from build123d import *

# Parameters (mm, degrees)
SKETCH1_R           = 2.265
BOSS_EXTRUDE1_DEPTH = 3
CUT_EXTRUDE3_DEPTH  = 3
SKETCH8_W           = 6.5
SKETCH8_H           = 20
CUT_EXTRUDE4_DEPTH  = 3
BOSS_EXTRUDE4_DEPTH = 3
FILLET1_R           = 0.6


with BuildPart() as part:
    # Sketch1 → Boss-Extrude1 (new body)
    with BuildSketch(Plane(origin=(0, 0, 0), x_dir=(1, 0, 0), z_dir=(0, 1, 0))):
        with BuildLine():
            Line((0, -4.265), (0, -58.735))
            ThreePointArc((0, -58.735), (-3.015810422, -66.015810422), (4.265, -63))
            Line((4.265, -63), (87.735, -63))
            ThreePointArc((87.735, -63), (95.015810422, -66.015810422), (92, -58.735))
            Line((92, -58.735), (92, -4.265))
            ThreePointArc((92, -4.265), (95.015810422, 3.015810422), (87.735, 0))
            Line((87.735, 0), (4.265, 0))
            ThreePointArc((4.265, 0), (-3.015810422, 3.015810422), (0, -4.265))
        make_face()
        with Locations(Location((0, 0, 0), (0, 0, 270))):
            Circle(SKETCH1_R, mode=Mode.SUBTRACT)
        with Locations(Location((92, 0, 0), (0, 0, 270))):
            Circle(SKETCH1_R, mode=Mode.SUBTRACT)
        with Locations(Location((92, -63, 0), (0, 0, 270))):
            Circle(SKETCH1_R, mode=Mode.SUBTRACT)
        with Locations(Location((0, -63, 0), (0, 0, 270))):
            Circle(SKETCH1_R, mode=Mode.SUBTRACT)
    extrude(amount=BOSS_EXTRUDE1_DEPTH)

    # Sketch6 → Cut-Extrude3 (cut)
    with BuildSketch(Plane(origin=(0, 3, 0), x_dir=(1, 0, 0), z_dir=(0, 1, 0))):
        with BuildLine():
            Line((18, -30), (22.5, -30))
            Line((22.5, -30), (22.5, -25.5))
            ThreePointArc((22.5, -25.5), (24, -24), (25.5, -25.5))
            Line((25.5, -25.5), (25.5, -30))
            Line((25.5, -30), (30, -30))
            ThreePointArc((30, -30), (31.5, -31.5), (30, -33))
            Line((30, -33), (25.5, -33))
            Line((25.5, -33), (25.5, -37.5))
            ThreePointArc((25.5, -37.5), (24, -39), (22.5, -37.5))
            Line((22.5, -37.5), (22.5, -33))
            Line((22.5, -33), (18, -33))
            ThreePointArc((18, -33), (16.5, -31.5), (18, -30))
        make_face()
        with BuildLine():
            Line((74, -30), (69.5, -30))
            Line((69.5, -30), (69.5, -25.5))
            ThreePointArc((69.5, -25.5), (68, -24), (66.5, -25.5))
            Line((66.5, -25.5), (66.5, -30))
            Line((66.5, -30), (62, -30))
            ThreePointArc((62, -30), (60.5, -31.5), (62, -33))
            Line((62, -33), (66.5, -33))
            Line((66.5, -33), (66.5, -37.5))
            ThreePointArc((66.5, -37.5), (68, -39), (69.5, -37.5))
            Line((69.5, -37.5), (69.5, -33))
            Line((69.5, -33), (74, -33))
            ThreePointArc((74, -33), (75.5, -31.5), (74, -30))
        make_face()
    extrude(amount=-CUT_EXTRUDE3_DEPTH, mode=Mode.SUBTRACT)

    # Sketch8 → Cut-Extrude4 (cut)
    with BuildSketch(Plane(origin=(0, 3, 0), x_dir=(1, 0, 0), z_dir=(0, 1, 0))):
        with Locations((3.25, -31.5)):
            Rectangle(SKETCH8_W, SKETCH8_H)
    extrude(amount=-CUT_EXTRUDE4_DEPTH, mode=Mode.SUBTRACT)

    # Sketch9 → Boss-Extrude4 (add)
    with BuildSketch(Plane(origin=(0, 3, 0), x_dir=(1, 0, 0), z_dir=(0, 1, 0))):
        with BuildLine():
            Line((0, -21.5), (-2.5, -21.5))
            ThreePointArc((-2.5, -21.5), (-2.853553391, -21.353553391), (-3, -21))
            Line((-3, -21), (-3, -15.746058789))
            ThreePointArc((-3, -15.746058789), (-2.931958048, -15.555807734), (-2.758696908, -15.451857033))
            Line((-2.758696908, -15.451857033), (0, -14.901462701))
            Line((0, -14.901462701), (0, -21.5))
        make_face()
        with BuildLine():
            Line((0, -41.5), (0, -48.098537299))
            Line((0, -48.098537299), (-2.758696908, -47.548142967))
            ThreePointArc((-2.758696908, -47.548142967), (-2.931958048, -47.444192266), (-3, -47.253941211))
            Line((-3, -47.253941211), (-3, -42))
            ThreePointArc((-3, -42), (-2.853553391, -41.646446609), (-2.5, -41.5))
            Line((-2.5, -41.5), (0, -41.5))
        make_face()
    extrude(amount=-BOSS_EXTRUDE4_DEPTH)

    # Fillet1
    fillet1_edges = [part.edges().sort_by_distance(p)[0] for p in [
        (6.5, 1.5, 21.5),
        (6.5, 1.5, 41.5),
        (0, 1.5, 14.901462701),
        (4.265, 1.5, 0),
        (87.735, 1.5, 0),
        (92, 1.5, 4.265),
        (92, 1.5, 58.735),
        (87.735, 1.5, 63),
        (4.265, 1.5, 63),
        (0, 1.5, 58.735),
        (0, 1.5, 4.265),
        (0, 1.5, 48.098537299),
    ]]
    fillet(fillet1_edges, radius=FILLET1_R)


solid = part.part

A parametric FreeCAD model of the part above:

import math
import FreeCAD as App
import Part
import Sketcher

V = App.Vector


def edges_at(feature, points):
    """Names of the edges that pass closest to the given points."""
    edges = feature.Shape.Edges
    near = lambda p: min(range(len(edges)), key=lambda i: edges[i].distToShape(Part.Vertex(*p))[0])
    return sorted({f"Edge{near(p) + 1}" for p in points})

doc = App.newDocument("Part")
body = doc.addObject("PartDesign::Body", "Body")

# Sketch on XZ plane
sketch1 = body.newObject("Sketcher::SketchObject", "Sketch")
sketch1.AttachmentSupport = (doc.getObject("XZ_Plane"), [""])
sketch1.MapMode = "FlatFace"
sketch1.addGeometry(Part.LineSegment(V(0, 4.265, 0), V(0, 58.735, 0)), False)
sketch1.addGeometry(Part.ArcOfCircle(Part.Circle(V(0, 63, 0), V(0, 0, 1), 4.265), math.radians(0), math.radians(270)), False)
sketch1.addGeometry(Part.LineSegment(V(4.265, 63, 0), V(87.735, 63, 0)), False)
sketch1.addGeometry(Part.ArcOfCircle(Part.Circle(V(92, 63, 0), V(0, 0, 1), 4.265), math.radians(-90), math.radians(180)), False)
sketch1.addGeometry(Part.LineSegment(V(92, 58.735, 0), V(92, 4.265, 0)), False)
sketch1.addGeometry(Part.ArcOfCircle(Part.Circle(V(92, 0, 0), V(0, 0, 1), 4.265), math.radians(180), math.radians(450)), False)
sketch1.addGeometry(Part.LineSegment(V(87.735, 0, 0), V(4.265, 0, 0)), False)
sketch1.addGeometry(Part.ArcOfCircle(Part.Circle(V(0, 0, 0), V(0, 0, 1), 4.265), math.radians(90), math.radians(360)), False)
sketch1.addGeometry(Part.Circle(V(0, 63, 0), V(0, 0, 1), 2.265), False)
sketch1.addGeometry(Part.Circle(V(92, 63, 0), V(0, 0, 1), 2.265), False)
sketch1.addGeometry(Part.Circle(V(0, 0, 0), V(0, 0, 1), 2.265), False)
sketch1.addGeometry(Part.Circle(V(92, 0, 0), V(0, 0, 1), 2.265), False)
sketch1.addConstraint(Sketcher.Constraint("Coincident", 0, 2, 1, 2))
sketch1.addConstraint(Sketcher.Constraint("Coincident", 1, 1, 2, 1))
sketch1.addConstraint(Sketcher.Constraint("Coincident", 2, 2, 3, 2))
sketch1.addConstraint(Sketcher.Constraint("Coincident", 3, 1, 4, 1))
sketch1.addConstraint(Sketcher.Constraint("Coincident", 4, 2, 5, 2))
sketch1.addConstraint(Sketcher.Constraint("Coincident", 5, 1, 6, 1))
sketch1.addConstraint(Sketcher.Constraint("Coincident", 6, 2, 7, 2))
sketch1.addConstraint(Sketcher.Constraint("Coincident", 7, 1, 0, 1))
sketch1.addConstraint(Sketcher.Constraint("Vertical", 0))
sketch1.addConstraint(Sketcher.Constraint("Horizontal", 2))
sketch1.addConstraint(Sketcher.Constraint("Vertical", 4))
sketch1.addConstraint(Sketcher.Constraint("Horizontal", 6))
sketch1.addConstraint(Sketcher.Constraint("Coincident", 7, 3, -1, 1))
sketch1.addConstraint(Sketcher.Constraint("Coincident", 10, 3, -1, 1))
sketch1.addConstraint(Sketcher.Constraint("Coincident", 8, 3, 1, 3))
sketch1.addConstraint(Sketcher.Constraint("Coincident", 9, 3, 3, 3))
sketch1.addConstraint(Sketcher.Constraint("Coincident", 11, 3, 5, 3))
sketch1.addConstraint(Sketcher.Constraint("Equal", 1, 3))
sketch1.addConstraint(Sketcher.Constraint("Equal", 3, 5))
sketch1.addConstraint(Sketcher.Constraint("Equal", 5, 7))
sketch1.addConstraint(Sketcher.Constraint("Equal", 8, 9))
sketch1.addConstraint(Sketcher.Constraint("Equal", 9, 10))
sketch1.addConstraint(Sketcher.Constraint("Equal", 10, 11))
sketch1.addConstraint(Sketcher.Constraint("PointOnObject", 1, 3, -2))
sketch1.addConstraint(Sketcher.Constraint("PointOnObject", 5, 3, -1))
sketch1.addConstraint(Sketcher.Constraint("PointOnObject", 0, 2, -2))
sketch1.addConstraint(Sketcher.Constraint("PointOnObject", 5, 1, -1))
sketch1.addConstraint(Sketcher.Constraint("Horizontal", 1, 3, 3, 3))
sketch1.addConstraint(Sketcher.Constraint("Horizontal", 9, 3, 1, 1))
sketch1.addConstraint(Sketcher.Constraint("Vertical", 3, 3, 5, 3))
sketch1.addConstraint(Sketcher.Constraint("Vertical", 11, 3, 3, 1))
sketch1.addConstraint(Sketcher.Constraint("Diameter", 8, 4.53))
sketch1.addConstraint(Sketcher.Constraint("DistanceY", -1, 1, 1, 3, 63.0))
sketch1.addConstraint(Sketcher.Constraint("DistanceX", -1, 1, 3, 3, 92.0))
sketch1.addConstraint(Sketcher.Constraint("Radius", 1, 4.265))
pad1 = body.newObject("PartDesign::Pad", "Pad")
pad1.Profile = sketch1
pad1.Length = 3
pad1.Reversed = True

# Sketch on XZ plane
sketch2 = body.newObject("Sketcher::SketchObject", "Sketch001")
sketch2.AttachmentSupport = (doc.getObject("XZ_Plane"), [""])
sketch2.MapMode = "FlatFace"
sketch2.AttachmentOffset = App.Placement(V(0, 0, -3), App.Rotation())
sketch2.addGeometry(Part.LineSegment(V(22.5, 30, 0), V(18, 30, 0)), False)
sketch2.addGeometry(Part.ArcOfCircle(Part.Circle(V(18, 31.5, 0), V(0, 0, 1), 1.5), math.radians(90), math.radians(270)), False)
sketch2.addGeometry(Part.LineSegment(V(18, 33, 0), V(22.5, 33, 0)), False)
sketch2.addGeometry(Part.LineSegment(V(22.5, 33, 0), V(22.5, 37.5, 0)), False)
sketch2.addGeometry(Part.ArcOfCircle(Part.Circle(V(24, 37.5, 0), V(0, 0, 1), 1.5), math.radians(0), math.radians(180)), False)
sketch2.addGeometry(Part.LineSegment(V(25.5, 37.5, 0), V(25.5, 33, 0)), False)
sketch2.addGeometry(Part.LineSegment(V(25.5, 33, 0), V(30, 33, 0)), False)
sketch2.addGeometry(Part.ArcOfCircle(Part.Circle(V(30, 31.5, 0), V(0, 0, 1), 1.5), math.radians(-90), math.radians(90)), False)
sketch2.addGeometry(Part.LineSegment(V(30, 30, 0), V(25.5, 30, 0)), False)
sketch2.addGeometry(Part.LineSegment(V(25.5, 30, 0), V(25.5, 25.5, 0)), False)
sketch2.addGeometry(Part.ArcOfCircle(Part.Circle(V(24, 25.5, 0), V(0, 0, 1), 1.5), math.radians(180), math.radians(360)), False)
sketch2.addGeometry(Part.LineSegment(V(22.5, 25.5, 0), V(22.5, 30, 0)), False)
sketch2.addGeometry(Part.LineSegment(V(74, 30, 0), V(69.5, 30, 0)), False)
sketch2.addGeometry(Part.LineSegment(V(69.5, 30, 0), V(69.5, 25.5, 0)), False)
sketch2.addGeometry(Part.ArcOfCircle(Part.Circle(V(68, 25.5, 0), V(0, 0, 1), 1.5), math.radians(180), math.radians(360)), False)
sketch2.addGeometry(Part.LineSegment(V(66.5, 25.5, 0), V(66.5, 30, 0)), False)
sketch2.addGeometry(Part.LineSegment(V(66.5, 30, 0), V(62, 30, 0)), False)
sketch2.addGeometry(Part.ArcOfCircle(Part.Circle(V(62, 31.5, 0), V(0, 0, 1), 1.5), math.radians(90), math.radians(270)), False)
sketch2.addGeometry(Part.LineSegment(V(62, 33, 0), V(66.5, 33, 0)), False)
sketch2.addGeometry(Part.LineSegment(V(66.5, 33, 0), V(66.5, 37.5, 0)), False)
sketch2.addGeometry(Part.ArcOfCircle(Part.Circle(V(68, 37.5, 0), V(0, 0, 1), 1.5), math.radians(0), math.radians(180)), False)
sketch2.addGeometry(Part.LineSegment(V(69.5, 37.5, 0), V(69.5, 33, 0)), False)
sketch2.addGeometry(Part.LineSegment(V(69.5, 33, 0), V(74, 33, 0)), False)
sketch2.addGeometry(Part.ArcOfCircle(Part.Circle(V(74, 31.5, 0), V(0, 0, 1), 1.5), math.radians(-90), math.radians(90)), False)
sketch2.addConstraint(Sketcher.Constraint("Tangent", 0, 2, 1, 2))
sketch2.addConstraint(Sketcher.Constraint("Tangent", 1, 1, 2, 1))
sketch2.addConstraint(Sketcher.Constraint("Coincident", 2, 2, 3, 1))
sketch2.addConstraint(Sketcher.Constraint("Tangent", 3, 2, 4, 2))
sketch2.addConstraint(Sketcher.Constraint("Tangent", 4, 1, 5, 1))
sketch2.addConstraint(Sketcher.Constraint("Coincident", 5, 2, 6, 1))
sketch2.addConstraint(Sketcher.Constraint("Tangent", 6, 2, 7, 2))
sketch2.addConstraint(Sketcher.Constraint("Tangent", 7, 1, 8, 1))
sketch2.addConstraint(Sketcher.Constraint("Coincident", 8, 2, 9, 1))
sketch2.addConstraint(Sketcher.Constraint("Tangent", 9, 2, 10, 2))
sketch2.addConstraint(Sketcher.Constraint("Tangent", 10, 1, 11, 1))
sketch2.addConstraint(Sketcher.Constraint("Coincident", 11, 2, 0, 1))
sketch2.addConstraint(Sketcher.Constraint("Coincident", 12, 2, 13, 1))
sketch2.addConstraint(Sketcher.Constraint("Tangent", 13, 2, 14, 2))
sketch2.addConstraint(Sketcher.Constraint("Tangent", 14, 1, 15, 1))
sketch2.addConstraint(Sketcher.Constraint("Coincident", 15, 2, 16, 1))
sketch2.addConstraint(Sketcher.Constraint("Tangent", 16, 2, 17, 2))
sketch2.addConstraint(Sketcher.Constraint("Tangent", 17, 1, 18, 1))
sketch2.addConstraint(Sketcher.Constraint("Coincident", 18, 2, 19, 1))
sketch2.addConstraint(Sketcher.Constraint("Tangent", 19, 2, 20, 2))
sketch2.addConstraint(Sketcher.Constraint("Tangent", 20, 1, 21, 1))
sketch2.addConstraint(Sketcher.Constraint("Coincident", 21, 2, 22, 1))
sketch2.addConstraint(Sketcher.Constraint("Tangent", 22, 2, 23, 2))
sketch2.addConstraint(Sketcher.Constraint("Tangent", 23, 1, 12, 1))
sketch2.addConstraint(Sketcher.Constraint("Horizontal", 0))
sketch2.addConstraint(Sketcher.Constraint("Horizontal", 2))
sketch2.addConstraint(Sketcher.Constraint("Vertical", 3))
sketch2.addConstraint(Sketcher.Constraint("Vertical", 5))
sketch2.addConstraint(Sketcher.Constraint("Horizontal", 6))
sketch2.addConstraint(Sketcher.Constraint("Horizontal", 8))
sketch2.addConstraint(Sketcher.Constraint("Vertical", 9))
sketch2.addConstraint(Sketcher.Constraint("Vertical", 11))
sketch2.addConstraint(Sketcher.Constraint("Horizontal", 12))
sketch2.addConstraint(Sketcher.Constraint("Vertical", 13))
sketch2.addConstraint(Sketcher.Constraint("Vertical", 15))
sketch2.addConstraint(Sketcher.Constraint("Horizontal", 16))
sketch2.addConstraint(Sketcher.Constraint("Horizontal", 18))
sketch2.addConstraint(Sketcher.Constraint("Vertical", 19))
sketch2.addConstraint(Sketcher.Constraint("Vertical", 21))
sketch2.addConstraint(Sketcher.Constraint("Horizontal", 22))
sketch2.addConstraint(Sketcher.Constraint("Equal", 1, 4))
sketch2.addConstraint(Sketcher.Constraint("Equal", 4, 7))
sketch2.addConstraint(Sketcher.Constraint("Equal", 7, 10))
sketch2.addConstraint(Sketcher.Constraint("Equal", 10, 14))
sketch2.addConstraint(Sketcher.Constraint("Equal", 14, 17))
sketch2.addConstraint(Sketcher.Constraint("Equal", 17, 20))
sketch2.addConstraint(Sketcher.Constraint("Equal", 20, 23))
sketch2.addConstraint(Sketcher.Constraint("Horizontal", 1, 3, 7, 3))
sketch2.addConstraint(Sketcher.Constraint("Horizontal", 10, 3, 14, 3))
sketch2.addConstraint(Sketcher.Constraint("Horizontal", 7, 3, 17, 3))
sketch2.addConstraint(Sketcher.Constraint("Horizontal", 4, 3, 20, 3))
sketch2.addConstraint(Sketcher.Constraint("Horizontal", 17, 3, 23, 3))
sketch2.addConstraint(Sketcher.Constraint("Vertical", 4, 3, 10, 3))
sketch2.addConstraint(Sketcher.Constraint("Vertical", 14, 3, 20, 3))
sketch2.addConstraint(Sketcher.Constraint("Equal", 2, 6))
sketch2.addConstraint(Sketcher.Constraint("Equal", 8, 12))
sketch2.addConstraint(Sketcher.Constraint("Equal", 12, 16))
sketch2.addConstraint(Sketcher.Constraint("Equal", 22, 3))
sketch2.addConstraint(Sketcher.Constraint("Equal", 5, 9))
sketch2.addConstraint(Sketcher.Constraint("Radius", 1, 1.5))
sketch2.addConstraint(Sketcher.Constraint("DistanceX", 0, 2, 0, 1, 4.5))
sketch2.addConstraint(Sketcher.Constraint("DistanceX", -1, 1, 1, 3, 18.0))
sketch2.addConstraint(Sketcher.Constraint("DistanceX", -1, 1, 14, 3, 68.0))
sketch2.addConstraint(Sketcher.Constraint("DistanceY", -1, 1, 0, 2, 30.0))
pocket1 = body.newObject("PartDesign::Pocket", "Pocket")
pocket1.Profile = sketch2
pocket1.Length = 3
pocket1.Reversed = True

# Sketch on XZ plane
sketch3 = body.newObject("Sketcher::SketchObject", "Sketch002")
sketch3.AttachmentSupport = (doc.getObject("XZ_Plane"), [""])
sketch3.MapMode = "FlatFace"
sketch3.AttachmentOffset = App.Placement(V(0, 0, -3), App.Rotation())
sketch3.addGeometry(Part.LineSegment(V(0, 21.5, 0), V(0, 41.5, 0)), False)
sketch3.addGeometry(Part.LineSegment(V(0, 41.5, 0), V(6.5, 41.5, 0)), False)
sketch3.addGeometry(Part.LineSegment(V(6.5, 41.5, 0), V(6.5, 21.5, 0)), False)
sketch3.addGeometry(Part.LineSegment(V(6.5, 21.5, 0), V(0, 21.5, 0)), False)
sketch3.addConstraint(Sketcher.Constraint("Coincident", 0, 2, 1, 1))
sketch3.addConstraint(Sketcher.Constraint("Coincident", 1, 2, 2, 1))
sketch3.addConstraint(Sketcher.Constraint("Coincident", 2, 2, 3, 1))
sketch3.addConstraint(Sketcher.Constraint("Coincident", 3, 2, 0, 1))
sketch3.addConstraint(Sketcher.Constraint("Vertical", 0))
sketch3.addConstraint(Sketcher.Constraint("Horizontal", 1))
sketch3.addConstraint(Sketcher.Constraint("Vertical", 2))
sketch3.addConstraint(Sketcher.Constraint("Horizontal", 3))
sketch3.addConstraint(Sketcher.Constraint("PointOnObject", 0, 2, -2))
sketch3.addConstraint(Sketcher.Constraint("DistanceY", 0, 1, 0, 2, 20.0))
sketch3.addConstraint(Sketcher.Constraint("DistanceX", 1, 1, 1, 2, 6.5))
sketch3.addConstraint(Sketcher.Constraint("DistanceY", -1, 1, 0, 2, 41.5))
pocket2 = body.newObject("PartDesign::Pocket", "Pocket001")
pocket2.Profile = sketch3
pocket2.Length = 3
pocket2.Reversed = True

# Sketch on XZ plane
sketch4 = body.newObject("Sketcher::SketchObject", "Sketch003")
sketch4.AttachmentSupport = (doc.getObject("XZ_Plane"), [""])
sketch4.MapMode = "FlatFace"
sketch4.AttachmentOffset = App.Placement(V(0, 0, -3), App.Rotation())
sketch4.addGeometry(Part.LineSegment(V(-2.5, 21.5, 0), V(0, 21.5, 0)), False)
sketch4.addGeometry(Part.LineSegment(V(0, 21.5, 0), V(0, 14.901463, 0)), False)
sketch4.addGeometry(Part.LineSegment(V(0, 14.901463, 0), V(-2.758697, 15.451857, 0)), False)
sketch4.addGeometry(Part.ArcOfCircle(Part.Circle(V(-2.7, 15.746059, 0), V(0, 0, 1), 0.3), math.radians(-180), math.radians(-101.283069)), False)
sketch4.addGeometry(Part.LineSegment(V(-3, 15.746059, 0), V(-3, 21, 0)), False)
sketch4.addGeometry(Part.ArcOfCircle(Part.Circle(V(-2.5, 21, 0), V(0, 0, 1), 0.5), math.radians(90), math.radians(180)), False)
sketch4.addGeometry(Part.LineSegment(V(0, 48.098537, 0), V(0, 41.5, 0)), False)
sketch4.addGeometry(Part.LineSegment(V(0, 41.5, 0), V(-2.5, 41.5, 0)), False)
sketch4.addGeometry(Part.ArcOfCircle(Part.Circle(V(-2.5, 42, 0), V(0, 0, 1), 0.5), math.radians(180), math.radians(270)), False)
sketch4.addGeometry(Part.LineSegment(V(-3, 42, 0), V(-3, 47.253941, 0)), False)
sketch4.addGeometry(Part.ArcOfCircle(Part.Circle(V(-2.7, 47.253941, 0), V(0, 0, 1), 0.3), math.radians(101.283069), math.radians(180)), False)
sketch4.addGeometry(Part.LineSegment(V(-2.758697, 47.548143, 0), V(0, 48.098537, 0)), False)
sketch4.addConstraint(Sketcher.Constraint("Coincident", 0, 2, 1, 1))
sketch4.addConstraint(Sketcher.Constraint("Coincident", 1, 2, 2, 1))
sketch4.addConstraint(Sketcher.Constraint("Tangent", 2, 2, 3, 2))
sketch4.addConstraint(Sketcher.Constraint("Tangent", 3, 1, 4, 1))
sketch4.addConstraint(Sketcher.Constraint("Tangent", 4, 2, 5, 2))
sketch4.addConstraint(Sketcher.Constraint("Tangent", 5, 1, 0, 1))
sketch4.addConstraint(Sketcher.Constraint("Coincident", 6, 2, 7, 1))
sketch4.addConstraint(Sketcher.Constraint("Tangent", 7, 2, 8, 2))
sketch4.addConstraint(Sketcher.Constraint("Tangent", 8, 1, 9, 1))
sketch4.addConstraint(Sketcher.Constraint("Tangent", 9, 2, 10, 2))
sketch4.addConstraint(Sketcher.Constraint("Tangent", 10, 1, 11, 1))
sketch4.addConstraint(Sketcher.Constraint("Coincident", 11, 2, 6, 1))
sketch4.addConstraint(Sketcher.Constraint("Horizontal", 0))
sketch4.addConstraint(Sketcher.Constraint("Vertical", 1))
sketch4.addConstraint(Sketcher.Constraint("Vertical", 4))
sketch4.addConstraint(Sketcher.Constraint("Vertical", 6))
sketch4.addConstraint(Sketcher.Constraint("Horizontal", 7))
sketch4.addConstraint(Sketcher.Constraint("Vertical", 9))
sketch4.addConstraint(Sketcher.Constraint("Equal", 5, 8))
sketch4.addConstraint(Sketcher.Constraint("Equal", 3, 10))
sketch4.addConstraint(Sketcher.Constraint("PointOnObject", 0, 2, -2))
sketch4.addConstraint(Sketcher.Constraint("PointOnObject", 6, 2, -2))
sketch4.addConstraint(Sketcher.Constraint("Vertical", 5, 3, 8, 3))
sketch4.addConstraint(Sketcher.Constraint("Vertical", 2, 2, 10, 1))
sketch4.addConstraint(Sketcher.Constraint("Equal", 1, 6))
sketch4.addConstraint(Sketcher.Constraint("Radius", 3, 0.3))
sketch4.addConstraint(Sketcher.Constraint("Radius", 5, 0.5))
sketch4.addConstraint(Sketcher.Constraint("DistanceX", 0, 1, 0, 2, 2.5))
sketch4.addConstraint(Sketcher.Constraint("DistanceY", -1, 1, 5, 3, 21.0))
sketch4.addConstraint(Sketcher.Constraint("DistanceY", -1, 1, 8, 3, 42.0))
sketch4.addConstraint(Sketcher.Constraint("DistanceY", 4, 1, 4, 2, 5.253941))
sketch4.addConstraint(Sketcher.Constraint("DistanceY", 2, 2, 3, 3, 0.294202))
pad2 = body.newObject("PartDesign::Pad", "Pad001")
pad2.Profile = sketch4
pad2.Length = 3
doc.recompute()

fillet = body.newObject("PartDesign::Fillet", "Fillet")
fillet.Base = (pad2, edges_at(pad2, [
    (6.5, 1.5, 21.5),
    (6.5, 1.5, 41.5),
    (0, 1.5, 14.901),
    (4.265, 1.5, 0),
    (87.735, 1.5, 0),
    (92, 1.5, 4.265),
    (92, 1.5, 58.735),
    (87.735, 1.5, 63),
    (4.265, 1.5, 63),
    (0, 1.5, 58.735),
    (0, 1.5, 4.265),
    (0, 1.5, 48.099),
]))
fillet.Radius = 0.6

doc.recompute()
